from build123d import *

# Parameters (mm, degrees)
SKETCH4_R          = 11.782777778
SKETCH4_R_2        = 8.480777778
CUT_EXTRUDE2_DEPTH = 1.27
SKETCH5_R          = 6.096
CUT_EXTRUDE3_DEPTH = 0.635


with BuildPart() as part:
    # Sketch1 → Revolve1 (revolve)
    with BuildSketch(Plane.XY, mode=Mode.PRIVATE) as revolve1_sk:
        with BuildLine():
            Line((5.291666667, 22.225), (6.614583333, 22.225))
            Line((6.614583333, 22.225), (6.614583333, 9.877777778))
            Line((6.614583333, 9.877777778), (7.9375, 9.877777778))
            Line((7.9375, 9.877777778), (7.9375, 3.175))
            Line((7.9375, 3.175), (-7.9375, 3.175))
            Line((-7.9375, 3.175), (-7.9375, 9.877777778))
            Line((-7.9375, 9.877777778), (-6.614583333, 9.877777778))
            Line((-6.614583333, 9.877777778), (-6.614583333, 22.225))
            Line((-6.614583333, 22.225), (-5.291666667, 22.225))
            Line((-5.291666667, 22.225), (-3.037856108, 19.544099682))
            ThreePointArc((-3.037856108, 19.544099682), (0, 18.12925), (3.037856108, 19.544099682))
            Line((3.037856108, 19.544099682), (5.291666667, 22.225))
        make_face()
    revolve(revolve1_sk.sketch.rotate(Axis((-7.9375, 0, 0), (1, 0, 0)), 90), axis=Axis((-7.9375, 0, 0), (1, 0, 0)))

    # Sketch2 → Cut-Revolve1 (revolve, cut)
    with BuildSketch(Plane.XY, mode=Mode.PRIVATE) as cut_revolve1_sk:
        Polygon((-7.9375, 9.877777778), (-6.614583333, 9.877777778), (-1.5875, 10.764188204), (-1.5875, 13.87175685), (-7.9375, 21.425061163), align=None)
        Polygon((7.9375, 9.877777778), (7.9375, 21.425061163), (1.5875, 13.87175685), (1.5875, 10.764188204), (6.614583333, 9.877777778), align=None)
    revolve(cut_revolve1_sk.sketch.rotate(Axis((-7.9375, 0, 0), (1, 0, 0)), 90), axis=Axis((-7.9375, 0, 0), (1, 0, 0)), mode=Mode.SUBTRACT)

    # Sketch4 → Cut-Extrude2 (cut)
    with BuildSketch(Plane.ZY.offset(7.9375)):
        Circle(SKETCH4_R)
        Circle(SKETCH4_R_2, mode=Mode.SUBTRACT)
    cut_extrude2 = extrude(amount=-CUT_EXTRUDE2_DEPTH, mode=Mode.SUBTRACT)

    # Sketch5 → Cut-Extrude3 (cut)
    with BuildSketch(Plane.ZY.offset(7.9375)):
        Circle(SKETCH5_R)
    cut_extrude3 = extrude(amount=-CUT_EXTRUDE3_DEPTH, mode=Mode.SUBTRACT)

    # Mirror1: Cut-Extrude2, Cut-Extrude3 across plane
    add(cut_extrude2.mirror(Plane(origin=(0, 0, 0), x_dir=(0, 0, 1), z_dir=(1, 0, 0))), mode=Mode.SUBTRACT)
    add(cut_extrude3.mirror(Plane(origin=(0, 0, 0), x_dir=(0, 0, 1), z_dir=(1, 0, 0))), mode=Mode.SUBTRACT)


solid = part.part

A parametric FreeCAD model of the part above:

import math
import FreeCAD as App
import Part
import Sketcher
from FreeCAD import Vector
Q = App.Units.Quantity

doc = App.newDocument("Part")
body = doc.addObject("PartDesign::Body", "Body")

# Sketch on XY plane
sketch1 = doc.addObject("Sketcher::SketchObject", "Sketch")
body.addObject(sketch1)
sketch1.AttachmentSupport = (doc.XY_Plane, [""])
sketch1.MapMode = "FlatFace"
sketch1.addGeometry(Part.LineSegment(Vector(6.6, 22.2, 0), Vector(5.3, 22.2, 0)), False)
sketch1.addGeometry(Part.LineSegment(Vector(5.3, 22.2, 0), Vector(3, 19.5, 0)), False)
sketch1.addGeometry(Part.ArcOfCircle(Part.Circle(Vector(0, 22.1, 0), Vector(0, 0, 1), 4), math.radians(-140), math.radians(-40)), False)
sketch1.addGeometry(Part.LineSegment(Vector(-3, 19.5, 0), Vector(-5.3, 22.2, 0)), False)
sketch1.addGeometry(Part.LineSegment(Vector(-5.3, 22.2, 0), Vector(-6.6, 22.2, 0)), False)
sketch1.addGeometry(Part.LineSegment(Vector(-6.6, 22.2, 0), Vector(-6.6, 9.9, 0)), False)
sketch1.addGeometry(Part.LineSegment(Vector(-6.6, 9.9, 0), Vector(-7.9, 9.9, 0)), False)
sketch1.addGeometry(Part.LineSegment(Vector(-7.9, 9.9, 0), Vector(-7.9, 3.2, 0)), False)
sketch1.addGeometry(Part.LineSegment(Vector(-7.9, 3.2, 0), Vector(7.9, 3.2, 0)), False)
sketch1.addGeometry(Part.LineSegment(Vector(7.9, 3.2, 0), Vector(7.9, 9.9, 0)), False)
sketch1.addGeometry(Part.LineSegment(Vector(7.9, 9.9, 0), Vector(6.6, 9.9, 0)), False)
sketch1.addGeometry(Part.LineSegment(Vector(6.6, 9.9, 0), Vector(6.6, 22.2, 0)), False)
sketch1.addConstraint(Sketcher.Constraint("Coincident", 0, 2, 1, 1))
sketch1.addConstraint(Sketcher.Constraint("Tangent", 1, 2, 2, 2))
sketch1.addConstraint(Sketcher.Constraint("Tangent", 2, 1, 3, 1))
sketch1.addConstraint(Sketcher.Constraint("Coincident", 3, 2, 4, 1))
sketch1.addConstraint(Sketcher.Constraint("Coincident", 4, 2, 5, 1))
sketch1.addConstraint(Sketcher.Constraint("Coincident", 5, 2, 6, 1))
sketch1.addConstraint(Sketcher.Constraint("Coincident", 6, 2, 7, 1))
sketch1.addConstraint(Sketcher.Constraint("Coincident", 7, 2, 8, 1))
sketch1.addConstraint(Sketcher.Constraint("Coincident", 8, 2, 9, 1))
sketch1.addConstraint(Sketcher.Constraint("Coincident", 9, 2, 10, 1))
sketch1.addConstraint(Sketcher.Constraint("Coincident", 10, 2, 11, 1))
sketch1.addConstraint(Sketcher.Constraint("Coincident", 11, 2, 0, 1))
sketch1.addConstraint(Sketcher.Constraint("Horizontal", 0))
sketch1.addConstraint(Sketcher.Constraint("Horizontal", 4))
sketch1.addConstraint(Sketcher.Constraint("Vertical", 5))
sketch1.addConstraint(Sketcher.Constraint("Horizontal", 6))
sketch1.addConstraint(Sketcher.Constraint("Vertical", 7))
sketch1.addConstraint(Sketcher.Constraint("Horizontal", 8))
sketch1.addConstraint(Sketcher.Constraint("Vertical", 9))
sketch1.addConstraint(Sketcher.Constraint("Horizontal", 10))
sketch1.addConstraint(Sketcher.Constraint("Vertical", 11))
sketch1.addConstraint(Sketcher.Constraint("Symmetric", 1, 2, 2, 1, -2))
sketch1.addConstraint(Sketcher.Constraint("Symmetric", 6, 2, 9, 2, -2))
sketch1.addConstraint(Sketcher.Constraint("Symmetric", 4, 2, 11, 2, -2))
sketch1.addConstraint(Sketcher.Constraint("Equal", 4, 6))
sketch1.addConstraint(Sketcher.Constraint("Radius", 2, Q("0.15625 in")))
sketch1.addConstraint(Sketcher.Constraint("DistanceX", 8, 1, 8, 2, Q("0.625 in")))
sketch1.addConstraint(Sketcher.Constraint("DistanceY", -1, 1, 2, 3, Q("0.87 in")))
sketch1.addConstraint(Sketcher.Constraint("DistanceY", 7, 2, 4, 2, Q("0.75 in")))
sketch1.addConstraint(Sketcher.Constraint("DistanceY", -1, 1, 0, 2, Q("0.875 in")))
sketch1.addConstraint(Sketcher.Constraint("DistanceX", 4, 2, 0, 2, Q("0.46875 in")))
sketch1.addConstraint(Sketcher.Constraint("DistanceY", 5, 2, 5, 1, Q("12.347222 mm")))
revolution = doc.addObject("PartDesign::Revolution", "Revolution")
body.addObject(revolution)
revolution.Profile = sketch1
revolution.ReferenceAxis = (sketch1, ["H_Axis"])
revolution.Angle = 360

# Sketch on XY plane
sketch2 = doc.addObject("Sketcher::SketchObject", "Sketch001")
body.addObject(sketch2)
sketch2.AttachmentSupport = (doc.XY_Plane, [""])
sketch2.MapMode = "FlatFace"
sketch2.addGeometry(Part.LineSegment(Vector(-7.9, 9.9, 0), Vector(-6.6, 9.9, 0)), False)
sketch2.addGeometry(Part.LineSegment(Vector(-6.6, 9.9, 0), Vector(-1.6, 10.8, 0)), False)
sketch2.addGeometry(Part.LineSegment(Vector(-1.6, 10.8, 0), Vector(-1.6, 13.9, 0)), False)
sketch2.addGeometry(Part.LineSegment(Vector(-1.6, 13.9, 0), Vector(-7.9, 21.4, 0)), False)
sketch2.addGeometry(Part.LineSegment(Vector(-7.9, 21.4, 0), Vector(-7.9, 9.9, 0)), False)
sketch2.addGeometry(Part.LineSegment(Vector(7.9, 9.9, 0), Vector(7.9, 21.4, 0)), False)
sketch2.addGeometry(Part.LineSegment(Vector(7.9, 21.4, 0), Vector(1.6, 13.9, 0)), False)
sketch2.addGeometry(Part.LineSegment(Vector(1.6, 13.9, 0), Vector(1.6, 10.8, 0)), False)
sketch2.addGeometry(Part.LineSegment(Vector(1.6, 10.8, 0), Vector(6.6, 9.9, 0)), False)
sketch2.addGeometry(Part.LineSegment(Vector(6.6, 9.9, 0), Vector(7.9, 9.9, 0)), False)
sketch2.addConstraint(Sketcher.Constraint("Coincident", 0, 2, 1, 1))
sketch2.addConstraint(Sketcher.Constraint("Coincident", 1, 2, 2, 1))
sketch2.addConstraint(Sketcher.Constraint("Coincident", 2, 2, 3, 1))
sketch2.addConstraint(Sketcher.Constraint("Coincident", 3, 2, 4, 1))
sketch2.addConstraint(Sketcher.Constraint("Coincident", 4, 2, 0, 1))
sketch2.addConstraint(Sketcher.Constraint("Coincident", 5, 2, 6, 1))
sketch2.addConstraint(Sketcher.Constraint("Coincident", 6, 2, 7, 1))
sketch2.addConstraint(Sketcher.Constraint("Coincident", 7, 2, 8, 1))
sketch2.addConstraint(Sketcher.Constraint("Coincident", 8, 2, 9, 1))
sketch2.addConstraint(Sketcher.Constraint("Coincident", 9, 2, 5, 1))
sketch2.addConstraint(Sketcher.Constraint("Horizontal", 0))
sketch2.addConstraint(Sketcher.Constraint("Vertical", 2))
sketch2.addConstraint(Sketcher.Constraint("Vertical", 4))
sketch2.addConstraint(Sketcher.Constraint("Vertical", 5))
sketch2.addConstraint(Sketcher.Constraint("Vertical", 7))
sketch2.addConstraint(Sketcher.Constraint("Horizontal", 9))
sketch2.addConstraint(Sketcher.Constraint("Symmetric", 3, 2, 5, 2, -2))
sketch2.addConstraint(Sketcher.Constraint("Symmetric", 2, 2, 6, 2, -2))
sketch2.addConstraint(Sketcher.Constraint("Symmetric", 0, 2, 8, 2, -2))
sketch2.addConstraint(Sketcher.Constraint("Horizontal", 1, 2, 7, 2))
sketch2.addConstraint(Sketcher.Constraint("Angle", 1, Q("10 deg")))
sketch2.addConstraint(Sketcher.Constraint("DistanceX", 3, 2, 2, 2, Q("0.25 in")))
sketch2.addConstraint(Sketcher.Constraint("DistanceX", 1, 2, -1, 1, Q("0.0625 in")))
sketch2.addConstraint(Sketcher.Constraint("DistanceY", 2, 1, 2, 2, Q("3.107569 mm")))
sketch2.addConstraint(Sketcher.Constraint("DistanceX", 0, 1, 0, 2, Q("1.322917 mm")))
sketch2.addConstraint(Sketcher.Constraint("DistanceY", 4, 2, 4, 1, Q("11.547283 mm")))
sketch2.addConstraint(Sketcher.Constraint("DistanceY", -1, 1, 1, 2, Q("10.764188 mm")))
groove = doc.addObject("PartDesign::Groove", "Groove")
body.addObject(groove)
groove.Profile = sketch2
groove.ReferenceAxis = (sketch2, ["H_Axis"])
groove.Angle = 360

# Sketch on YZ plane
sketch3 = doc.addObject("Sketcher::SketchObject", "Sketch002")
body.addObject(sketch3)
sketch3.AttachmentSupport = (doc.YZ_Plane, [""])
sketch3.MapMode = "FlatFace"
sketch3.AttachmentOffset = App.Placement(Vector(0, 0, -0.3125 * 25.4), App.Rotation())
sketch3.addGeometry(Part.Circle(Vector(0, 0, 0), Vector(0, 0, 1), 12), False)
sketch3.addGeometry(Part.Circle(Vector(0, 0, 0), Vector(0, 0, 1), 8), False)
sketch3.addConstraint(Sketcher.Constraint("Coincident", 0, 3, -1, 1))
sketch3.addConstraint(Sketcher.Constraint("Coincident", 1, 3, -1, 1))
sketch3.addConstraint(Sketcher.Constraint("Diameter", 0, Q("23.565556 mm")))
sketch3.addConstraint(Sketcher.Constraint("Diameter", 1, Q("16.961556 mm")))
pocket1 = doc.addObject("PartDesign::Pocket", "Pocket")
body.addObject(pocket1)
pocket1.Profile = sketch3
pocket1.Length = Q("0.05 in")
pocket1.Reversed = True

# Sketch on YZ plane
sketch4 = doc.addObject("Sketcher::SketchObject", "Sketch003")
body.addObject(sketch4)
sketch4.AttachmentSupport = (doc.YZ_Plane, [""])
sketch4.MapMode = "FlatFace"
sketch4.AttachmentOffset = App.Placement(Vector(0, 0, -0.3125 * 25.4), App.Rotation())
sketch4.addGeometry(Part.Circle(Vector(0, 0, 0), Vector(0, 0, 1), 6), False)
sketch4.addConstraint(Sketcher.Constraint("Coincident", 0, 3, -1, 1))
sketch4.addConstraint(Sketcher.Constraint("Diameter", 0, Q("0.48 in")))
pocket2 = doc.addObject("PartDesign::Pocket", "Pocket001")
body.addObject(pocket2)
pocket2.Profile = sketch4
pocket2.Length = Q("0.025 in")
pocket2.Reversed = True
doc.recompute()

mirrored = doc.addObject("PartDesign::Mirrored", "Mirrored")
body.addObject(mirrored)
mirrored.Originals = [pocket1, pocket2]
mirrored.MirrorPlane = (doc.YZ_Plane, [""])
body.Tip = mirrored

doc.recompute()
